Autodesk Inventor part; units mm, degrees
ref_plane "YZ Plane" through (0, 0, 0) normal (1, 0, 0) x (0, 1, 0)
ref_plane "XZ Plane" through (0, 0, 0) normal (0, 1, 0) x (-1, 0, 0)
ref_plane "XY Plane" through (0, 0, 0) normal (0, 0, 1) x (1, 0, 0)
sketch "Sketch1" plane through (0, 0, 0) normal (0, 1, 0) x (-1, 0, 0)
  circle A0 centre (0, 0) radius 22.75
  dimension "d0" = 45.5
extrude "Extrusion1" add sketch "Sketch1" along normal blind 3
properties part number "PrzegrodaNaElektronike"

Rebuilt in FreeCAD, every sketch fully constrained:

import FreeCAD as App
import Part
import Sketcher
from FreeCAD import Vector

doc = App.newDocument("Part")
body = doc.addObject("PartDesign::Body", "Body")

sketch1 = doc.addObject("Sketcher::SketchObject", "Sketch")
body.addObject(sketch1)
sketch1.AttachmentSupport = (doc.XZ_Plane, [""])
sketch1.MapMode = "FlatFace"
sketch1.addGeometry(Part.Circle(Vector(0, 0, 0), Vector(0, 0, 1), 23), False)
sketch1.addConstraint([
    Sketcher.Constraint("Coincident", 0, 3, -1, 1),
    Sketcher.Constraint("Diameter", 0, 45.5),
])
pad1 = doc.addObject("PartDesign::Pad", "Pad")
body.addObject(pad1)
pad1.Profile = sketch1
pad1.Length = 3
pad1.Reversed = True

doc.recompute()
